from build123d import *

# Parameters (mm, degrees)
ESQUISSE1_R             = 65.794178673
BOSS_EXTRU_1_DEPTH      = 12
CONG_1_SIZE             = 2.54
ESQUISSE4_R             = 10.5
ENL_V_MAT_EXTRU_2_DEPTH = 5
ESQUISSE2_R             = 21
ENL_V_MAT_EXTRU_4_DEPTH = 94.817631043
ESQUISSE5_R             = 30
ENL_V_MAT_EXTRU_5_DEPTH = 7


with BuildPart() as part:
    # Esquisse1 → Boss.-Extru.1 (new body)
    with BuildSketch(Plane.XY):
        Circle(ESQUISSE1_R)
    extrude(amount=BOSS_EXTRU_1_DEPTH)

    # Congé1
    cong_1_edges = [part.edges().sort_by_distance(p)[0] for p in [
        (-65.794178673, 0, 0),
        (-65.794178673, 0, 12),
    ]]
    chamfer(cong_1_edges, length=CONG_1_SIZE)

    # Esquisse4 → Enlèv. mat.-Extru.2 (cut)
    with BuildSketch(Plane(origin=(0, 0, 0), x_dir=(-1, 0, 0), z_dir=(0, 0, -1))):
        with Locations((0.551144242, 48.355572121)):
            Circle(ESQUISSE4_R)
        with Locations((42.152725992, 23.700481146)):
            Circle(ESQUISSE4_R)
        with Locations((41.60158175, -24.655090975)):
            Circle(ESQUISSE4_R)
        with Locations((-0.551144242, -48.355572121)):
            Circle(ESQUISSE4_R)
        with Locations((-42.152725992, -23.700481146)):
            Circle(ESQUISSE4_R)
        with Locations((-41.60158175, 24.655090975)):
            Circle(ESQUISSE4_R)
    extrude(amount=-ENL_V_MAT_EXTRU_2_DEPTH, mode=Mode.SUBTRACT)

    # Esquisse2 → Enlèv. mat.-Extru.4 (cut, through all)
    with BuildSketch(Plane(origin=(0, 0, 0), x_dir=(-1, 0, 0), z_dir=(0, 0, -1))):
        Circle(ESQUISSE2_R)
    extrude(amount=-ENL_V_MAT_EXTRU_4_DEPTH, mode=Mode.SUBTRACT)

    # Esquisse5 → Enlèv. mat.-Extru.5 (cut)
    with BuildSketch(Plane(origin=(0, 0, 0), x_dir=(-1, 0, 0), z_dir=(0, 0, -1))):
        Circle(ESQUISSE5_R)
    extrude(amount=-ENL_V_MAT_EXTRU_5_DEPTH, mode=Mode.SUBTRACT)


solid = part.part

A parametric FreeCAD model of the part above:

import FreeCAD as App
import Part
import Sketcher

V = App.Vector
Q = App.Units.Quantity


def edges_at(feature, points):
    """Names of the edges that pass closest to the given points."""
    edges = feature.Shape.Edges
    near = lambda p: min(range(len(edges)), key=lambda i: edges[i].distToShape(Part.Vertex(*p))[0])
    return sorted({f"Edge{near(p) + 1}" for p in points})

doc = App.newDocument("Part")
body = doc.addObject("PartDesign::Body", "Body")

# Sketch on XY plane
sketch1 = body.newObject("Sketcher::SketchObject", "Sketch")
sketch1.AttachmentSupport = (doc.getObject("XY_Plane"), [""])
sketch1.MapMode = "FlatFace"
sketch1.addGeometry(Part.Circle(V(0, 0, 0), V(0, 0, 1), 65.794179), False)
sketch1.addConstraint(Sketcher.Constraint("Coincident", 0, 3, -1, 1))
sketch1.addConstraint(Sketcher.Constraint("Diameter", 0, Q("131.588357 mm")))
pad1 = body.newObject("PartDesign::Pad", "Pad")
pad1.Profile = sketch1
pad1.Length = 12
doc.recompute()

chamfer = body.newObject("PartDesign::Chamfer", "Chamfer")
chamfer.Base = (pad1, edges_at(pad1, [(-65.794, 0, 0), (-65.794, 0, 12)]))
chamfer.Size = 2.54

# Sketch on XY plane
sketch2 = body.newObject("Sketcher::SketchObject", "Sketch001")
sketch2.AttachmentSupport = (doc.getObject("XY_Plane"), [""])
sketch2.MapMode = "FlatFace"
sketch2.addGeometry(Part.Circle(V(-0.551144, 48.355572, 0), V(0, 0, 1), 10.5), False)
sketch2.addGeometry(Part.Circle(V(-42.152726, 23.700481, 0), V(0, 0, 1), 10.5), False)
sketch2.addGeometry(Part.Circle(V(-41.601582, -24.655091, 0), V(0, 0, 1), 10.5), False)
sketch2.addGeometry(Part.Circle(V(0.551144, -48.355572, 0), V(0, 0, 1), 10.5), False)
sketch2.addGeometry(Part.Circle(V(42.152726, -23.700481, 0), V(0, 0, 1), 10.5), False)
sketch2.addGeometry(Part.Circle(V(41.601582, 24.655091, 0), V(0, 0, 1), 10.5), False)
sketch2.addConstraint(Sketcher.Constraint("Equal", 0, 1))
sketch2.addConstraint(Sketcher.Constraint("Equal", 1, 2))
sketch2.addConstraint(Sketcher.Constraint("Equal", 2, 3))
sketch2.addConstraint(Sketcher.Constraint("Equal", 3, 4))
sketch2.addConstraint(Sketcher.Constraint("Equal", 4, 5))
sketch2.addConstraint(Sketcher.Constraint("Symmetric", 0, 3, 3, 3, -1, 1))
sketch2.addConstraint(Sketcher.Constraint("Symmetric", 1, 3, 4, 3, -1, 1))
sketch2.addConstraint(Sketcher.Constraint("Symmetric", 2, 3, 5, 3, -1, 1))
sketch2.addConstraint(Sketcher.Constraint("Diameter", 0, Q("21 mm")))
sketch2.addConstraint(Sketcher.Constraint("DistanceY", -1, 1, 1, 3, Q("23.700481 mm")))
sketch2.addConstraint(Sketcher.Constraint("DistanceX", 2, 3, -1, 1, Q("41.601582 mm")))
sketch2.addConstraint(Sketcher.Constraint("DistanceY", 2, 3, -1, 1, Q("24.655091 mm")))
sketch2.addConstraint(Sketcher.Constraint("DistanceX", 1, 3, 0, 3, Q("41.601582 mm")))
sketch2.addConstraint(Sketcher.Constraint("DistanceY", 1, 3, 0, 3, Q("24.655091 mm")))
sketch2.addConstraint(Sketcher.Constraint("DistanceX", 1, 3, 3, 3, Q("42.70387 mm")))
pocket1 = body.newObject("PartDesign::Pocket", "Pocket")
pocket1.Profile = sketch2
pocket1.Length = 5
pocket1.Reversed = True

# Sketch on XY plane
sketch3 = body.newObject("Sketcher::SketchObject", "Sketch002")
sketch3.AttachmentSupport = (doc.getObject("XY_Plane"), [""])
sketch3.MapMode = "FlatFace"
sketch3.addGeometry(Part.Circle(V(0, 0, 0), V(0, 0, 1), 21), False)
sketch3.addConstraint(Sketcher.Constraint("Coincident", 0, 3, -1, 1))
sketch3.addConstraint(Sketcher.Constraint("Diameter", 0, Q("42 mm")))
pocket2 = body.newObject("PartDesign::Pocket", "Pocket001")
pocket2.Profile = sketch3
pocket2.Type = "ThroughAll"
pocket2.Reversed = True

# Sketch on XY plane
sketch4 = body.newObject("Sketcher::SketchObject", "Sketch003")
sketch4.AttachmentSupport = (doc.getObject("XY_Plane"), [""])
sketch4.MapMode = "FlatFace"
sketch4.addGeometry(Part.Circle(V(0, 0, 0), V(0, 0, 1), 30), False)
sketch4.addConstraint(Sketcher.Constraint("Coincident", 0, 3, -1, 1))
sketch4.addConstraint(Sketcher.Constraint("Diameter", 0, Q("60 mm")))
pocket3 = body.newObject("PartDesign::Pocket", "Pocket002")
pocket3.Profile = sketch4
pocket3.Length = 7
pocket3.Reversed = True

doc.recompute()
